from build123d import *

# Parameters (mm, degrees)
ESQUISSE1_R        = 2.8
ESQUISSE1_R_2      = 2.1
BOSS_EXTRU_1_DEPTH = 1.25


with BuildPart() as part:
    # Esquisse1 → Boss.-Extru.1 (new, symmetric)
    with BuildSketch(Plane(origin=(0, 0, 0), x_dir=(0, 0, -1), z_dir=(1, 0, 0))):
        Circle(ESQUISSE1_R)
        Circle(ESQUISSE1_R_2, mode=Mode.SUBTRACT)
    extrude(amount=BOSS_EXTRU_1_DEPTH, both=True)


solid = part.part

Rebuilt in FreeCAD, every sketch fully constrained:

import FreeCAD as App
import Part
import Sketcher
from FreeCAD import Vector
Q = App.Units.Quantity

doc = App.newDocument("Part")
params = doc.addObject("Spreadsheet::Sheet", "Params")
for row, (alias, value) in enumerate([
    ("sketch1_diameter", "5.6 mm"),
    ("sketch1_diameter2", "4.2 mm"),
    ("pad1_length", "2.5 mm"),
], start=1):
    params.set(f"A{row}", alias)
    params.set(f"B{row}", "=" + value)
    params.setAlias(f"B{row}", alias)

body = doc.addObject("PartDesign::Body", "Body")

sketch1 = body.newObject("Sketcher::SketchObject", "Sketch")
sketch1.AttachmentSupport = (doc.getObject("YZ_Plane"), [""])
sketch1.MapMode = "FlatFace"
sketch1.addGeometry([
    Part.Circle(Vector(0, 0, 0), Vector(0, 0, 1), 2.8),
    Part.Circle(Vector(0, 0, 0), Vector(0, 0, 1), 2.1),
], False)
sketch1.addConstraint([
    Sketcher.Constraint("Coincident", 0, 3, -1, 1),
    Sketcher.Constraint("Coincident", 1, 3, -1, 1),
    Sketcher.Constraint("Diameter", 0, Q("5.6 mm")),
    Sketcher.Constraint("Diameter", 1, Q("4.2 mm")),
])
sketch1.setExpression("Constraints[2]", "Params.sketch1_diameter")
sketch1.setExpression("Constraints[3]", "Params.sketch1_diameter2")
pad1 = body.newObject("PartDesign::Pad", "Pad")
pad1.Profile = sketch1
pad1.setExpression("Length", "Params.pad1_length")
pad1.Midplane = True

doc.recompute()
